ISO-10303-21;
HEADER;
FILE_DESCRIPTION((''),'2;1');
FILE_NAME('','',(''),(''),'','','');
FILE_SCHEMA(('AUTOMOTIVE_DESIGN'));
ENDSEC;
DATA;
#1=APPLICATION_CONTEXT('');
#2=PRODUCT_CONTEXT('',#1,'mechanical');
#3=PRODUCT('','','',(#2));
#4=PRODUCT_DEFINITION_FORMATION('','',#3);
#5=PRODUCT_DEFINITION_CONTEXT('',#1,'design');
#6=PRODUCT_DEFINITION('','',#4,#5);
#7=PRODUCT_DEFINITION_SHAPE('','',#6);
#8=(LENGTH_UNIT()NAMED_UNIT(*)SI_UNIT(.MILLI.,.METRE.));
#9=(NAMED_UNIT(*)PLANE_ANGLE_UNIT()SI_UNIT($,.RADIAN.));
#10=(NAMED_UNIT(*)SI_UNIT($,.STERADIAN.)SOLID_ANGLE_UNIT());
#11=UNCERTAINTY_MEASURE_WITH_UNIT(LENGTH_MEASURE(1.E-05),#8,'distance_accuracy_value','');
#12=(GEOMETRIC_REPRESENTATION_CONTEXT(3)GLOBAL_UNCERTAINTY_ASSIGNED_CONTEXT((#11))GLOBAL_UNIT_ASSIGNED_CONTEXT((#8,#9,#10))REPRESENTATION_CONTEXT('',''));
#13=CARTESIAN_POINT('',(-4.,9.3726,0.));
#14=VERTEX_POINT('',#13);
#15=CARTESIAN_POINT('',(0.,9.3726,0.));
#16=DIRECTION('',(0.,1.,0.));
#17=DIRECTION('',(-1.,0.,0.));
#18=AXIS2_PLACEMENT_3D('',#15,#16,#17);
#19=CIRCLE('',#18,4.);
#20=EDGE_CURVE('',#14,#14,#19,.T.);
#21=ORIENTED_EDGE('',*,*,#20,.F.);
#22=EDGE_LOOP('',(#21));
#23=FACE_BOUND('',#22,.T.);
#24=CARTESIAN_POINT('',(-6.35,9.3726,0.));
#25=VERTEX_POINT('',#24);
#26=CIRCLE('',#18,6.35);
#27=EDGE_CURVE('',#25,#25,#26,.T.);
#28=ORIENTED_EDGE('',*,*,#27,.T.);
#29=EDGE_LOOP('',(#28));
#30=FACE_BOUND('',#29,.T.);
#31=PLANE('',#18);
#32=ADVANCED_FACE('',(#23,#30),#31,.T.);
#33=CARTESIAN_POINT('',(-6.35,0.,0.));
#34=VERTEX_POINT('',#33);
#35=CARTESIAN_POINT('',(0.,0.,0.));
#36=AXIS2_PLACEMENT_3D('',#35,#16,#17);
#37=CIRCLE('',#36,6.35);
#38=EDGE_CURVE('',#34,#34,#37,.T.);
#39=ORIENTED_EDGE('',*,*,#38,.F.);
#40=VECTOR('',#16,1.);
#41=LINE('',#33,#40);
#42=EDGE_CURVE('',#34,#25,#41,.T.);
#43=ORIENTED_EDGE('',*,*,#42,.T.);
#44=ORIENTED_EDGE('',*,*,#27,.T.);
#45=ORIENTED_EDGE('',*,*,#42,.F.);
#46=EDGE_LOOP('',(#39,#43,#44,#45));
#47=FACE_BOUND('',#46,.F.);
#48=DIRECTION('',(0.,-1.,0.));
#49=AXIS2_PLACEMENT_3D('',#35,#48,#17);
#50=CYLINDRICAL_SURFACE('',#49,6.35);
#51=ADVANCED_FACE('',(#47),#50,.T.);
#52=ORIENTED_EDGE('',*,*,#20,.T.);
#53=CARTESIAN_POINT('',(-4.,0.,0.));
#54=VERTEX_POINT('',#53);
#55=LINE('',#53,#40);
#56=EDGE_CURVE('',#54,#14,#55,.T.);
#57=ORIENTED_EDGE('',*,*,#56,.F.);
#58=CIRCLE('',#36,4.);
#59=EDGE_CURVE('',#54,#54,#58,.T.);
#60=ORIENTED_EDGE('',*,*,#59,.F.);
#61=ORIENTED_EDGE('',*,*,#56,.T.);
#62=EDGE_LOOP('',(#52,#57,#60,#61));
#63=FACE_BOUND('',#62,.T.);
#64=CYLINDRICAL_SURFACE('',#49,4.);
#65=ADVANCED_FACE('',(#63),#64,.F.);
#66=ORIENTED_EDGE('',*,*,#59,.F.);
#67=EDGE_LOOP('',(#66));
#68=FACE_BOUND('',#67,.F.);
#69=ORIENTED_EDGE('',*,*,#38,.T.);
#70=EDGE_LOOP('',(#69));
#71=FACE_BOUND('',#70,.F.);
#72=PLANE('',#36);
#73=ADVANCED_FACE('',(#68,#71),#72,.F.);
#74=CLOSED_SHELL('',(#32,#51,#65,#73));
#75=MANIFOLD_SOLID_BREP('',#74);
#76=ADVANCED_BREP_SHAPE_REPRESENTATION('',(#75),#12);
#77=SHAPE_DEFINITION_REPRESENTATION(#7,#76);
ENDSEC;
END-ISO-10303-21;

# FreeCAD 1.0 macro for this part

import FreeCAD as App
import Part
import Sketcher
Q = App.Units.Quantity

doc = App.newDocument("Part")
body = doc.addObject("PartDesign::Body", "Body")

# Sketch on XZ plane
sketch1 = body.newObject("Sketcher::SketchObject", "Sketch")
sketch1.AttachmentSupport = (doc.getObject("XZ_Plane"), [""])
sketch1.MapMode = "FlatFace"
sketch1.addGeometry(Part.Circle(App.Vector(0, 0, 0), App.Vector(0, 0, 1), 6.3), False)
sketch1.addGeometry(Part.Circle(App.Vector(0, 0, 0), App.Vector(0, 0, 1), 4), False)
sketch1.addConstraint(Sketcher.Constraint("Coincident", 0, 3, -1, 1))
sketch1.addConstraint(Sketcher.Constraint("Coincident", 1, 3, -1, 1))
sketch1.addConstraint(Sketcher.Constraint("Diameter", 0, Q("0.5 in")))
sketch1.addConstraint(Sketcher.Constraint("Diameter", 1, 8.0))
pad1 = body.newObject("PartDesign::Pad", "Pad")
pad1.Profile = sketch1
pad1.Length = Q("0.369 in")
pad1.Reversed = True

doc.recompute()
